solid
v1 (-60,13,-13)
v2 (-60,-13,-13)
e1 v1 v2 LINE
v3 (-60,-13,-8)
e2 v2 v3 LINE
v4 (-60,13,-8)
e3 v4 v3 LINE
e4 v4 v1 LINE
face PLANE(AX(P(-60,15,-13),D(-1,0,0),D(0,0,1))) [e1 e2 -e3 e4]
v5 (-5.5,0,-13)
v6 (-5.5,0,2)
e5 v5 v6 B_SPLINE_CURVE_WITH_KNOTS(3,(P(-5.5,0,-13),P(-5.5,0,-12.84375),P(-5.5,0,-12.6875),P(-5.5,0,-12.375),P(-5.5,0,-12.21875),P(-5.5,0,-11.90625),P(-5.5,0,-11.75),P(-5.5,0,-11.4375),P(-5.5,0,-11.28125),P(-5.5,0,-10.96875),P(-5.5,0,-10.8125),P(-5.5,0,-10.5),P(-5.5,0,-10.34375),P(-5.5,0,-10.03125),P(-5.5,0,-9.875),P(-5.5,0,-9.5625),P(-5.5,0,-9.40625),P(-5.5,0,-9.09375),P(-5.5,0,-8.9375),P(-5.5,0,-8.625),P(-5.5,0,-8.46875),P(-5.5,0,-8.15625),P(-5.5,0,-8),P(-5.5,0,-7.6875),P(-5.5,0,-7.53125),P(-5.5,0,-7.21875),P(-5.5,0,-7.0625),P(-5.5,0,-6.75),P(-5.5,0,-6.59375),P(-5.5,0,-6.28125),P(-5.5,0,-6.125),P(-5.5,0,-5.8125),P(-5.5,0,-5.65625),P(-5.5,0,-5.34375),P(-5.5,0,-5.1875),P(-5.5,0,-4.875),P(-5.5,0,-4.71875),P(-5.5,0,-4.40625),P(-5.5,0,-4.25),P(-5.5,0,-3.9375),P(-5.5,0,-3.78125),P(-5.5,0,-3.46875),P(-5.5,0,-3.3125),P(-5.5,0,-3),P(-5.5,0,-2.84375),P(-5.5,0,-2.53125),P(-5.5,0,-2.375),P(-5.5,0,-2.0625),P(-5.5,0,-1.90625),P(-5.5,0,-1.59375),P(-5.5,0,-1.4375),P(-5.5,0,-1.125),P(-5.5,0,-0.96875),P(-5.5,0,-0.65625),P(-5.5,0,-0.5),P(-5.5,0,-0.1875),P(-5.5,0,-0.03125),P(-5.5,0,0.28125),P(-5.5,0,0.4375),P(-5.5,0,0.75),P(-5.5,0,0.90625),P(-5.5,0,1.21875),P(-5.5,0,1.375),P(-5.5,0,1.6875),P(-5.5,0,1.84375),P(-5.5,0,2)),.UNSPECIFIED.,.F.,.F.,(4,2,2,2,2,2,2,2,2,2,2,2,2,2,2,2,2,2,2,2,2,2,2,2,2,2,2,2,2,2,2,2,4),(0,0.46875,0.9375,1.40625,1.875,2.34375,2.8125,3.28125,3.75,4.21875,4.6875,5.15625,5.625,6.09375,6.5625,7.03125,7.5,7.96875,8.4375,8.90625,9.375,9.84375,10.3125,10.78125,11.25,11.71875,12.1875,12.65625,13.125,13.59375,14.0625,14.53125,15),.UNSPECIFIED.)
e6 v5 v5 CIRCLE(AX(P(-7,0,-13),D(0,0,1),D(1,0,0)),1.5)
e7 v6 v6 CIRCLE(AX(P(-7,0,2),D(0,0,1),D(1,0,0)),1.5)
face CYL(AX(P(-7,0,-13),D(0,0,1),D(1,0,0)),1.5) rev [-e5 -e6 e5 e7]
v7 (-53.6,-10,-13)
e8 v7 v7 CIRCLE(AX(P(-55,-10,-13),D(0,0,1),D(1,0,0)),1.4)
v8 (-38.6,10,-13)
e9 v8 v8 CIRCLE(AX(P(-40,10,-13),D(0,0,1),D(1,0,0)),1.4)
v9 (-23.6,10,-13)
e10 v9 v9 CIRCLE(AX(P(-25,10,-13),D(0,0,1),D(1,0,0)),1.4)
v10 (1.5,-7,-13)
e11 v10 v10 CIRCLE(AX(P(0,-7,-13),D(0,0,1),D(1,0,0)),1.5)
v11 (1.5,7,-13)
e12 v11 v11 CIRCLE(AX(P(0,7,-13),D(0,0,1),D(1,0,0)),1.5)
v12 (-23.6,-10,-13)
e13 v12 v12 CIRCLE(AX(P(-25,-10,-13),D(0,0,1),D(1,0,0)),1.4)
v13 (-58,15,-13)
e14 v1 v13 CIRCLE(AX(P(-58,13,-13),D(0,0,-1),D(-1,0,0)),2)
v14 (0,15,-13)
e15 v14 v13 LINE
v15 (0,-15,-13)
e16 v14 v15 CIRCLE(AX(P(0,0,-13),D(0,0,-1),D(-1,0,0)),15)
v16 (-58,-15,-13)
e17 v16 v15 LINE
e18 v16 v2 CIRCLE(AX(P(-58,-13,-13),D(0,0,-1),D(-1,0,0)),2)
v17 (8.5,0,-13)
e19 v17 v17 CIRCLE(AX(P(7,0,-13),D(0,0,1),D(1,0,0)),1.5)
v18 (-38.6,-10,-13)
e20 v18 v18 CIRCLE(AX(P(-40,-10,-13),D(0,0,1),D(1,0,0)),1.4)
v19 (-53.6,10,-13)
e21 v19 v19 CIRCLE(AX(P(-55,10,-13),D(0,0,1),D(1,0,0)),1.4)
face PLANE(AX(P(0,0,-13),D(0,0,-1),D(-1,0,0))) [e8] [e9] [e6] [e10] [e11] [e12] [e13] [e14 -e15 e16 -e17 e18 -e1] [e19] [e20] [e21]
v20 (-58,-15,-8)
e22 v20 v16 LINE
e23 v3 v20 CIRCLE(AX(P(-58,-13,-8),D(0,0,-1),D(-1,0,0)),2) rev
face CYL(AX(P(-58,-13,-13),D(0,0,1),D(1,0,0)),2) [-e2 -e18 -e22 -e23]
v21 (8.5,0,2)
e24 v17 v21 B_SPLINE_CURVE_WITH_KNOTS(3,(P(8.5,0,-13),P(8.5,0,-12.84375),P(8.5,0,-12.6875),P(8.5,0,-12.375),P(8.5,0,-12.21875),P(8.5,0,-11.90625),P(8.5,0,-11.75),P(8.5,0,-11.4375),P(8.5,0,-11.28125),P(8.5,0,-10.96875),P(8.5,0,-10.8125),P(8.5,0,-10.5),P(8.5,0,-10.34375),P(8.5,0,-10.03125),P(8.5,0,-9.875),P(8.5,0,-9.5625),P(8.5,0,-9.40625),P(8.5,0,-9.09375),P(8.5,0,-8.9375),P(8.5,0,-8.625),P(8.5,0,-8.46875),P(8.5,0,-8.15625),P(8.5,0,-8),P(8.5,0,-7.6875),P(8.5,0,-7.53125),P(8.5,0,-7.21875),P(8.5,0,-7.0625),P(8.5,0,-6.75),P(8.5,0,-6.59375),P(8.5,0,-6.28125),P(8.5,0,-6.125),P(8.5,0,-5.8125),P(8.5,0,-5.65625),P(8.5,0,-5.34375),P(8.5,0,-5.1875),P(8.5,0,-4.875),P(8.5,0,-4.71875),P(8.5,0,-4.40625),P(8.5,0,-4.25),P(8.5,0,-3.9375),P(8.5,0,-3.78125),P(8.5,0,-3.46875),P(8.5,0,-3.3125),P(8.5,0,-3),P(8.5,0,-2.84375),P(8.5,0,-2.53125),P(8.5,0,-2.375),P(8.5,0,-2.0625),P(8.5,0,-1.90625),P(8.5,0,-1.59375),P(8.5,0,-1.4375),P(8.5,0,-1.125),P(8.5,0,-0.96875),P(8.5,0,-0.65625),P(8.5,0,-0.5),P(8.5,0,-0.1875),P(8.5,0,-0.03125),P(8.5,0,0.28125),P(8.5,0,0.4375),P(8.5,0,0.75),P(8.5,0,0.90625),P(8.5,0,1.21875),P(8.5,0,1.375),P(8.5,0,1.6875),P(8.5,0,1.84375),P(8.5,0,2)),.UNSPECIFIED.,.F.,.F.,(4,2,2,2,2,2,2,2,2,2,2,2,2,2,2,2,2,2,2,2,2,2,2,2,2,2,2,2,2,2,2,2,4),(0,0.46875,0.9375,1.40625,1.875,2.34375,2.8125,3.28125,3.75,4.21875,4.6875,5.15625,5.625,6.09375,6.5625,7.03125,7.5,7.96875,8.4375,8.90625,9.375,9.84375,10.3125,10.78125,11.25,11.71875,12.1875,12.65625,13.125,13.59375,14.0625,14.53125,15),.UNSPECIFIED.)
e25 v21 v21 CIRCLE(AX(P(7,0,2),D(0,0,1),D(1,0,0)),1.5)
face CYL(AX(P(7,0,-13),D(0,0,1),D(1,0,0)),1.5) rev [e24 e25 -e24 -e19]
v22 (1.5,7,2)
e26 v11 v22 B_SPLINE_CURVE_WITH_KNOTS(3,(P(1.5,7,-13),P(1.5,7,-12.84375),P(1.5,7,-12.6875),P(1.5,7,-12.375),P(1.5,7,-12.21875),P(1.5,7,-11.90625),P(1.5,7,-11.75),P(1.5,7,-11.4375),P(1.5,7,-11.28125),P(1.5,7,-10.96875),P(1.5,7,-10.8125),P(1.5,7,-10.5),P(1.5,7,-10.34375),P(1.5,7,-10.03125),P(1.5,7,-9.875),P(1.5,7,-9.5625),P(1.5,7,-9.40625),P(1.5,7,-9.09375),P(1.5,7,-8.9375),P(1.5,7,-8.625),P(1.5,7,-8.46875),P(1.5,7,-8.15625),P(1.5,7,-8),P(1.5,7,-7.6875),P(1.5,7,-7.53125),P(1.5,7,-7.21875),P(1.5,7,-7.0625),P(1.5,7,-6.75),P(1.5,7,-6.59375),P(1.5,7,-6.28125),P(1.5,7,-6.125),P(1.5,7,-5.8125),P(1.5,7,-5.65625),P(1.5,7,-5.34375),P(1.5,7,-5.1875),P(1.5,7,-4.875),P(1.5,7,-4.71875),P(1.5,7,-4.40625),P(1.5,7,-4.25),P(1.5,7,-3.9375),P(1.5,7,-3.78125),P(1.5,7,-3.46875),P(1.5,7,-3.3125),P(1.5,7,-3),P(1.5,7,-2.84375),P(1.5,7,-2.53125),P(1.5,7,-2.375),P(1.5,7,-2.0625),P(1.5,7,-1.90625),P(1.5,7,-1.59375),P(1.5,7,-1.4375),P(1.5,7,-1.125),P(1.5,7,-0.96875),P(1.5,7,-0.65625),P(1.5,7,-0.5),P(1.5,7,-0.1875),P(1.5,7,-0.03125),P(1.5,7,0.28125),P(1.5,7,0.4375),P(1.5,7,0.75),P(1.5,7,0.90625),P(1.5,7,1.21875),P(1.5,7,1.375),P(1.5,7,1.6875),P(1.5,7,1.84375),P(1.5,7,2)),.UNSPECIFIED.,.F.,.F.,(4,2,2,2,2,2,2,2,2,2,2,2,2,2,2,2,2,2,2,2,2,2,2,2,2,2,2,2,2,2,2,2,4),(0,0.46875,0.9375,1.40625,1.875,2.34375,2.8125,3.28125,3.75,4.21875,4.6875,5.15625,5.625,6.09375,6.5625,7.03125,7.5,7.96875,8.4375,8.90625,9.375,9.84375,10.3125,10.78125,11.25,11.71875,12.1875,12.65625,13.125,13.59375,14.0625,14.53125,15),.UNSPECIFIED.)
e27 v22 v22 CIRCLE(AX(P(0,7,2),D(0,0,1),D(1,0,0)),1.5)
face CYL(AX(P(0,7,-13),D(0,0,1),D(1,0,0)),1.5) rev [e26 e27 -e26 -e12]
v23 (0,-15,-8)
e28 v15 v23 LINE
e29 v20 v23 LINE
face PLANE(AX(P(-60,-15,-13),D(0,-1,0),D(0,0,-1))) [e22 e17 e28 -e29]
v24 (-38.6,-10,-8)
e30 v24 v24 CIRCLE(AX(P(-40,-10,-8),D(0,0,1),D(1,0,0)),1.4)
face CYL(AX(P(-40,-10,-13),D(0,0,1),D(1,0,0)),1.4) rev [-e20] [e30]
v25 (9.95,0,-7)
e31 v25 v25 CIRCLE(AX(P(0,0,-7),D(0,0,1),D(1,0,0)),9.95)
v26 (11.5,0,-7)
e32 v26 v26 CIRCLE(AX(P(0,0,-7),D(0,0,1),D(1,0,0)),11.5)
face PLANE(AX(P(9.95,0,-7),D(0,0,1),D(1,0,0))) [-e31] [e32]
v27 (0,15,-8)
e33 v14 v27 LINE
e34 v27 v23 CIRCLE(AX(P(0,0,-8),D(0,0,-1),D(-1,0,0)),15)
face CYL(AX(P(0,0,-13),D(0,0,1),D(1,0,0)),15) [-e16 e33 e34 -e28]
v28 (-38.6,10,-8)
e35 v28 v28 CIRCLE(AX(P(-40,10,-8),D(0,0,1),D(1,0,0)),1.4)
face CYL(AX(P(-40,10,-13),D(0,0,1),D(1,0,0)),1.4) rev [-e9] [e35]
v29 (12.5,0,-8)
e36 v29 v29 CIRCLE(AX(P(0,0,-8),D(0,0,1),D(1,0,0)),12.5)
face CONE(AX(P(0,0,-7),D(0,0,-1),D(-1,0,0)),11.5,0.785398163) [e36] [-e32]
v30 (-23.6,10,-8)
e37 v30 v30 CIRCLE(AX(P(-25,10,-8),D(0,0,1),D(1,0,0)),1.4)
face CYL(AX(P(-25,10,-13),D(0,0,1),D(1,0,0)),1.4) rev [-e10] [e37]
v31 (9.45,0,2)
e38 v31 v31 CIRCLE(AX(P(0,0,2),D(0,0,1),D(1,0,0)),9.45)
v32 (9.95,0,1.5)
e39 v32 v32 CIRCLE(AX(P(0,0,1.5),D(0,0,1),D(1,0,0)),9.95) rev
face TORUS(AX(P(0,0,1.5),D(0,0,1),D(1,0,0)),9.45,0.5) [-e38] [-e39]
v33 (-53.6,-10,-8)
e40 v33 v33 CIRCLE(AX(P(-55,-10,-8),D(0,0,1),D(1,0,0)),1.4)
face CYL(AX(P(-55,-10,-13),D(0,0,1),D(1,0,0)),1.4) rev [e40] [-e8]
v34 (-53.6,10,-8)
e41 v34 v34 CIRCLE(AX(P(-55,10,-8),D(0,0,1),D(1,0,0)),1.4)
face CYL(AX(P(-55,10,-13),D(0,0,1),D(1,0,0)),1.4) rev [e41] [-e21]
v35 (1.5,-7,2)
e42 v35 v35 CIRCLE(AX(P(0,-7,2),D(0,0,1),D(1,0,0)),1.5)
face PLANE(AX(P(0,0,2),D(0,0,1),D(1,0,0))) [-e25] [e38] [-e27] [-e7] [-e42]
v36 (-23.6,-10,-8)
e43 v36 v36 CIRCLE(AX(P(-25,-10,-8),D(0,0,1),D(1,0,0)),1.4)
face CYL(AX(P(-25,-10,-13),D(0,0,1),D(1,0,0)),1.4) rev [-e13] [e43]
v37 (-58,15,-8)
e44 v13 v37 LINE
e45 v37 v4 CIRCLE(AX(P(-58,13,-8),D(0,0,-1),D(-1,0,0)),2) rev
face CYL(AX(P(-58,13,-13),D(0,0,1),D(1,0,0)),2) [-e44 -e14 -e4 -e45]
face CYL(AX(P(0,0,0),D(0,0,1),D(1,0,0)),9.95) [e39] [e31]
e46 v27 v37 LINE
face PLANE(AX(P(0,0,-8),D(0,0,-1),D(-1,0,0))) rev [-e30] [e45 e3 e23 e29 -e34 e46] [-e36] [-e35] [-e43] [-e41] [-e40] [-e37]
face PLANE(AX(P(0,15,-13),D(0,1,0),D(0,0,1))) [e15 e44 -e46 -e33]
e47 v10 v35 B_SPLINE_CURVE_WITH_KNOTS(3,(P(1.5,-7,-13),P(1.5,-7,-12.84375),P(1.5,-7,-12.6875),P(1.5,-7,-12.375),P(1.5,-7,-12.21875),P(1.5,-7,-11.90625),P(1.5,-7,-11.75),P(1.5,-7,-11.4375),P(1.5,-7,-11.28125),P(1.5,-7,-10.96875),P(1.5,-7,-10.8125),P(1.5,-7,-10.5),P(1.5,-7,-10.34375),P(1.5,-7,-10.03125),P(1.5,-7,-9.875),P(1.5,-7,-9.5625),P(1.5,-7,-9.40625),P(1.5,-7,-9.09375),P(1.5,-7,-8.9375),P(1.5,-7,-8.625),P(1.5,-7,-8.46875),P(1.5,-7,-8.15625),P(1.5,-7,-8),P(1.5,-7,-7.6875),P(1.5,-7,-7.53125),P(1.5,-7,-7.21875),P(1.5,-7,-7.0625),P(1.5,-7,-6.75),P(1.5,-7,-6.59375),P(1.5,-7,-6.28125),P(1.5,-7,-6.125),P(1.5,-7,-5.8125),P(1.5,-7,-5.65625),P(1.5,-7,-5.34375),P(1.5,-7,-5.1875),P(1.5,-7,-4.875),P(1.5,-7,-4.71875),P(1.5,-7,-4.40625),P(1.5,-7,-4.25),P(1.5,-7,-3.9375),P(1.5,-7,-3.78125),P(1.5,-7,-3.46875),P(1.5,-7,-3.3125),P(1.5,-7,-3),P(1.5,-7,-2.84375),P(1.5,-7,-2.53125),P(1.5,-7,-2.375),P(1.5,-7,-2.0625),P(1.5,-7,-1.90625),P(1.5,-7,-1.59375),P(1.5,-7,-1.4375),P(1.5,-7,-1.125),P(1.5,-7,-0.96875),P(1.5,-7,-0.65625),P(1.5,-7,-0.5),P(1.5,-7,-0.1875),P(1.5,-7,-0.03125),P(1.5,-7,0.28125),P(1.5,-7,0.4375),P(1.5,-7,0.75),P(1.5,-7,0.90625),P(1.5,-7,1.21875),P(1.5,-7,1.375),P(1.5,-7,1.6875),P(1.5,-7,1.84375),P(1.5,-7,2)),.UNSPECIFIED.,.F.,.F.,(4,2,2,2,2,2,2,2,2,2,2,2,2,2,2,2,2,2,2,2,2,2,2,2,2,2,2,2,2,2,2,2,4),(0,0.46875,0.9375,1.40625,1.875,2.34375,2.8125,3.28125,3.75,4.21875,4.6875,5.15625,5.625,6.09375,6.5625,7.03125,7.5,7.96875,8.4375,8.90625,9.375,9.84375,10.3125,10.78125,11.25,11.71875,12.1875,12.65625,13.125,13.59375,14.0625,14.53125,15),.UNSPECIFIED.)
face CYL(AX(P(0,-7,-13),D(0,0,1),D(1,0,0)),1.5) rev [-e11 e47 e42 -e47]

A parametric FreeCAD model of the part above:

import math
import FreeCAD as App
import Part
import Sketcher
from FreeCAD import Vector
Q = App.Units.Quantity


def edges_at(feature, points):
    """Names of the edges that pass closest to the given points."""
    edges = feature.Shape.Edges
    near = lambda p: min(range(len(edges)), key=lambda i: edges[i].distToShape(Part.Vertex(*p))[0])
    return sorted({f"Edge{near(p) + 1}" for p in points})


def add_polygon(sketch, points):
    """Adds a closed chain of lines whose ends are joined by coincident constraints."""
    first, n = sketch.GeometryCount, len(points)
    for a, b in zip(points, points[1:] + points[:1]):
        sketch.addGeometry(Part.LineSegment(App.Vector(*a, 0), App.Vector(*b, 0)), False)
    for i in range(n):
        sketch.addConstraint(Sketcher.Constraint("Coincident", first + i, 2, first + (i + 1) % n, 1))

doc = App.newDocument("Part")
body = doc.addObject("PartDesign::Body", "Body")

# Sketch on XZ plane
sketch1 = body.newObject("Sketcher::SketchObject", "Sketch")
sketch1.AttachmentSupport = (doc.getObject("XZ_Plane"), [""])
sketch1.MapMode = "FlatFace"
add_polygon(sketch1, [(0, 0), (9.9, 0), (9.9, -7), (11.5, -7), (12.5, -8), (0, -8)])  # lines 0-5
sketch1.addConstraint([
    Sketcher.Constraint("Horizontal", 0),
    Sketcher.Constraint("Vertical", 1),
    Sketcher.Constraint("Horizontal", 2),
    Sketcher.Constraint("Horizontal", 4),
    Sketcher.Constraint("Vertical", 5),
    Sketcher.Constraint("Coincident", 5, 2, -1, 1),
    Sketcher.Constraint("DistanceY", 1, 2, 1, 1, Q("7 mm")),
    Sketcher.Constraint("DistanceY", 5, 1, 5, 2, Q("8 mm")),
    Sketcher.Constraint("Angle", 3, Q("-45 deg")),
    Sketcher.Constraint("DistanceX", 4, 2, 4, 1, Q("12.5 mm")),
    Sketcher.Constraint("DistanceX", 0, 1, 0, 2, Q("9.95 mm")),
])
revolution = body.newObject("PartDesign::Revolution", "Revolution")
revolution.Profile = sketch1
revolution.ReferenceAxis = (sketch1, ["V_Axis"])
revolution.Angle = 360

# Sketch on XY plane
sketch2 = body.newObject("Sketcher::SketchObject", "Sketch001")
sketch2.AttachmentSupport = (doc.getObject("XY_Plane"), [""])
sketch2.MapMode = "FlatFace"
sketch2.AttachmentOffset = App.Placement(Vector(0, 0, -8), App.Rotation())
sketch2.addGeometry([
    Part.LineSegment(Vector(-60, 15, 0), Vector(0, 15, 0)),
    Part.ArcOfCircle(Part.Circle(Vector(0, 0, 0), Vector(0, 0, 1), 15), math.radians(-90), math.radians(90)),
    Part.LineSegment(Vector(0, -15, 0), Vector(-60, -15, 0)),
    Part.LineSegment(Vector(-60, -15, 0), Vector(-60, 15, 0)),
], False)
sketch2.addConstraint([
    Sketcher.Constraint("Tangent", 0, 2, 1, 2),
    Sketcher.Constraint("Tangent", 1, 1, 2, 1),
    Sketcher.Constraint("Coincident", 2, 2, 3, 1),
    Sketcher.Constraint("Coincident", 3, 2, 0, 1),
    Sketcher.Constraint("Horizontal", 0),
    Sketcher.Constraint("Horizontal", 2),
    Sketcher.Constraint("Vertical", 3),
    Sketcher.Constraint("Coincident", 1, 3, -1, 1),
    Sketcher.Constraint("Radius", 1, Q("15 mm")),
    Sketcher.Constraint("DistanceX", 0, 1, 0, 2, Q("60 mm")),
])
pad1 = body.newObject("PartDesign::Pad", "Pad")
pad1.Profile = sketch2
pad1.Length = 5
pad1.Reversed = True

# Sketch on XY plane
sketch3 = body.newObject("Sketcher::SketchObject", "Sketch002")
sketch3.AttachmentSupport = (doc.getObject("XY_Plane"), [""])
sketch3.MapMode = "FlatFace"
sketch3.addGeometry(Part.Circle(Vector(0, 0, 0), Vector(0, 0, 1), 10), False)
sketch3.addConstraint([
    Sketcher.Constraint("Coincident", 0, 3, -1, 1),
    Sketcher.Constraint("Diameter", 0, Q("19.9 mm")),
])
pad2 = body.newObject("PartDesign::Pad", "Pad001")
pad2.Profile = sketch3
pad2.Length = 2

# Sketch on XY plane
sketch4 = body.newObject("Sketcher::SketchObject", "Sketch003")
sketch4.AttachmentSupport = (doc.getObject("XY_Plane"), [""])
sketch4.MapMode = "FlatFace"
sketch4.AttachmentOffset = App.Placement(Vector(0, 0, 2), App.Rotation())
sketch4.addGeometry([
    Part.Circle(Vector(0, 7, 0), Vector(0, 0, 1), 1.5),
    Part.Circle(Vector(7, 0, 0), Vector(0, 0, 1), 1.5),
    Part.Circle(Vector(0, -7, 0), Vector(0, 0, 1), 1.5),
    Part.Circle(Vector(-7, 0, 0), Vector(0, 0, 1), 1.5),
], False)
sketch4.addConstraint([
    Sketcher.Constraint("Equal", 0, 1),
    Sketcher.Constraint("Equal", 1, 2),
    Sketcher.Constraint("Equal", 2, 3),
    Sketcher.Constraint("Symmetric", 0, 3, 2, 3, -1, 1),
    Sketcher.Constraint("Symmetric", 1, 3, 3, 3, -1, 1),
    Sketcher.Constraint("PointOnObject", 0, 3, -2),
    Sketcher.Constraint("PointOnObject", 1, 3, -1),
    Sketcher.Constraint("Diameter", 0, Q("3 mm")),
    Sketcher.Constraint("DistanceY", -1, 1, 0, 3, Q("7 mm")),
    Sketcher.Constraint("DistanceX", -1, 1, 1, 3, Q("7 mm")),
])
pocket1 = body.newObject("PartDesign::Pocket", "Pocket")
pocket1.Profile = sketch4
pocket1.Type = "ThroughAll"

# Sketch on XY plane
sketch5 = body.newObject("Sketcher::SketchObject", "Sketch004")
sketch5.AttachmentSupport = (doc.getObject("XY_Plane"), [""])
sketch5.MapMode = "FlatFace"
sketch5.AttachmentOffset = App.Placement(Vector(0, 0, -8), App.Rotation())
sketch5.addGeometry([
    Part.Circle(Vector(-55, 10, 0), Vector(0, 0, 1), 1.4),  # 0
    Part.Circle(Vector(-55, -10, 0), Vector(0, 0, 1), 1.4),  # 1
    Part.Circle(Vector(-40, 10, 0), Vector(0, 0, 1), 1.4),  # 2
    Part.Circle(Vector(-40, -10, 0), Vector(0, 0, 1), 1.4),  # 3
    Part.Circle(Vector(-25, 10, 0), Vector(0, 0, 1), 1.4),  # 4
    Part.Circle(Vector(-25, -10, 0), Vector(0, 0, 1), 1.4),  # 5
], False)
sketch5.addConstraint([
    Sketcher.Constraint("Equal", 0, 1),
    Sketcher.Constraint("Equal", 1, 2),
    Sketcher.Constraint("Equal", 2, 3),
    Sketcher.Constraint("Equal", 3, 4),
    Sketcher.Constraint("Equal", 4, 5),
    Sketcher.Constraint("Symmetric", 0, 3, 1, 3, -1),
    Sketcher.Constraint("Symmetric", 2, 3, 3, 3, -1),
    Sketcher.Constraint("Symmetric", 4, 3, 5, 3, -1),
    Sketcher.Constraint("Horizontal", 0, 3, 2, 3),
    Sketcher.Constraint("Horizontal", 2, 3, 4, 3),
    Sketcher.Constraint("Diameter", 0, Q("2.8 mm")),
    Sketcher.Constraint("DistanceX", 0, 3, -1, 1, Q("55 mm")),
    Sketcher.Constraint("DistanceY", -1, 1, 0, 3, Q("10 mm")),
    Sketcher.Constraint("DistanceX", 2, 3, -1, 1, Q("40 mm")),
    Sketcher.Constraint("DistanceX", 4, 3, -1, 1, Q("25 mm")),
])
pocket2 = body.newObject("PartDesign::Pocket", "Pocket001")
pocket2.Profile = sketch5
pocket2.Type = "ThroughAll"
doc.recompute()

fillet = body.newObject("PartDesign::Fillet", "Fillet")
fillet.Base = (pocket2, edges_at(pocket2, [(-60, -15, -10.5), (-60, 15, -10.5)]))
fillet.Radius = 2
doc.recompute()

fillet2 = body.newObject("PartDesign::Fillet", "Fillet001")
fillet2.Base = (fillet, edges_at(fillet, [(-9.95, 0, 2)]))
fillet2.Radius = 0.5

doc.recompute()
